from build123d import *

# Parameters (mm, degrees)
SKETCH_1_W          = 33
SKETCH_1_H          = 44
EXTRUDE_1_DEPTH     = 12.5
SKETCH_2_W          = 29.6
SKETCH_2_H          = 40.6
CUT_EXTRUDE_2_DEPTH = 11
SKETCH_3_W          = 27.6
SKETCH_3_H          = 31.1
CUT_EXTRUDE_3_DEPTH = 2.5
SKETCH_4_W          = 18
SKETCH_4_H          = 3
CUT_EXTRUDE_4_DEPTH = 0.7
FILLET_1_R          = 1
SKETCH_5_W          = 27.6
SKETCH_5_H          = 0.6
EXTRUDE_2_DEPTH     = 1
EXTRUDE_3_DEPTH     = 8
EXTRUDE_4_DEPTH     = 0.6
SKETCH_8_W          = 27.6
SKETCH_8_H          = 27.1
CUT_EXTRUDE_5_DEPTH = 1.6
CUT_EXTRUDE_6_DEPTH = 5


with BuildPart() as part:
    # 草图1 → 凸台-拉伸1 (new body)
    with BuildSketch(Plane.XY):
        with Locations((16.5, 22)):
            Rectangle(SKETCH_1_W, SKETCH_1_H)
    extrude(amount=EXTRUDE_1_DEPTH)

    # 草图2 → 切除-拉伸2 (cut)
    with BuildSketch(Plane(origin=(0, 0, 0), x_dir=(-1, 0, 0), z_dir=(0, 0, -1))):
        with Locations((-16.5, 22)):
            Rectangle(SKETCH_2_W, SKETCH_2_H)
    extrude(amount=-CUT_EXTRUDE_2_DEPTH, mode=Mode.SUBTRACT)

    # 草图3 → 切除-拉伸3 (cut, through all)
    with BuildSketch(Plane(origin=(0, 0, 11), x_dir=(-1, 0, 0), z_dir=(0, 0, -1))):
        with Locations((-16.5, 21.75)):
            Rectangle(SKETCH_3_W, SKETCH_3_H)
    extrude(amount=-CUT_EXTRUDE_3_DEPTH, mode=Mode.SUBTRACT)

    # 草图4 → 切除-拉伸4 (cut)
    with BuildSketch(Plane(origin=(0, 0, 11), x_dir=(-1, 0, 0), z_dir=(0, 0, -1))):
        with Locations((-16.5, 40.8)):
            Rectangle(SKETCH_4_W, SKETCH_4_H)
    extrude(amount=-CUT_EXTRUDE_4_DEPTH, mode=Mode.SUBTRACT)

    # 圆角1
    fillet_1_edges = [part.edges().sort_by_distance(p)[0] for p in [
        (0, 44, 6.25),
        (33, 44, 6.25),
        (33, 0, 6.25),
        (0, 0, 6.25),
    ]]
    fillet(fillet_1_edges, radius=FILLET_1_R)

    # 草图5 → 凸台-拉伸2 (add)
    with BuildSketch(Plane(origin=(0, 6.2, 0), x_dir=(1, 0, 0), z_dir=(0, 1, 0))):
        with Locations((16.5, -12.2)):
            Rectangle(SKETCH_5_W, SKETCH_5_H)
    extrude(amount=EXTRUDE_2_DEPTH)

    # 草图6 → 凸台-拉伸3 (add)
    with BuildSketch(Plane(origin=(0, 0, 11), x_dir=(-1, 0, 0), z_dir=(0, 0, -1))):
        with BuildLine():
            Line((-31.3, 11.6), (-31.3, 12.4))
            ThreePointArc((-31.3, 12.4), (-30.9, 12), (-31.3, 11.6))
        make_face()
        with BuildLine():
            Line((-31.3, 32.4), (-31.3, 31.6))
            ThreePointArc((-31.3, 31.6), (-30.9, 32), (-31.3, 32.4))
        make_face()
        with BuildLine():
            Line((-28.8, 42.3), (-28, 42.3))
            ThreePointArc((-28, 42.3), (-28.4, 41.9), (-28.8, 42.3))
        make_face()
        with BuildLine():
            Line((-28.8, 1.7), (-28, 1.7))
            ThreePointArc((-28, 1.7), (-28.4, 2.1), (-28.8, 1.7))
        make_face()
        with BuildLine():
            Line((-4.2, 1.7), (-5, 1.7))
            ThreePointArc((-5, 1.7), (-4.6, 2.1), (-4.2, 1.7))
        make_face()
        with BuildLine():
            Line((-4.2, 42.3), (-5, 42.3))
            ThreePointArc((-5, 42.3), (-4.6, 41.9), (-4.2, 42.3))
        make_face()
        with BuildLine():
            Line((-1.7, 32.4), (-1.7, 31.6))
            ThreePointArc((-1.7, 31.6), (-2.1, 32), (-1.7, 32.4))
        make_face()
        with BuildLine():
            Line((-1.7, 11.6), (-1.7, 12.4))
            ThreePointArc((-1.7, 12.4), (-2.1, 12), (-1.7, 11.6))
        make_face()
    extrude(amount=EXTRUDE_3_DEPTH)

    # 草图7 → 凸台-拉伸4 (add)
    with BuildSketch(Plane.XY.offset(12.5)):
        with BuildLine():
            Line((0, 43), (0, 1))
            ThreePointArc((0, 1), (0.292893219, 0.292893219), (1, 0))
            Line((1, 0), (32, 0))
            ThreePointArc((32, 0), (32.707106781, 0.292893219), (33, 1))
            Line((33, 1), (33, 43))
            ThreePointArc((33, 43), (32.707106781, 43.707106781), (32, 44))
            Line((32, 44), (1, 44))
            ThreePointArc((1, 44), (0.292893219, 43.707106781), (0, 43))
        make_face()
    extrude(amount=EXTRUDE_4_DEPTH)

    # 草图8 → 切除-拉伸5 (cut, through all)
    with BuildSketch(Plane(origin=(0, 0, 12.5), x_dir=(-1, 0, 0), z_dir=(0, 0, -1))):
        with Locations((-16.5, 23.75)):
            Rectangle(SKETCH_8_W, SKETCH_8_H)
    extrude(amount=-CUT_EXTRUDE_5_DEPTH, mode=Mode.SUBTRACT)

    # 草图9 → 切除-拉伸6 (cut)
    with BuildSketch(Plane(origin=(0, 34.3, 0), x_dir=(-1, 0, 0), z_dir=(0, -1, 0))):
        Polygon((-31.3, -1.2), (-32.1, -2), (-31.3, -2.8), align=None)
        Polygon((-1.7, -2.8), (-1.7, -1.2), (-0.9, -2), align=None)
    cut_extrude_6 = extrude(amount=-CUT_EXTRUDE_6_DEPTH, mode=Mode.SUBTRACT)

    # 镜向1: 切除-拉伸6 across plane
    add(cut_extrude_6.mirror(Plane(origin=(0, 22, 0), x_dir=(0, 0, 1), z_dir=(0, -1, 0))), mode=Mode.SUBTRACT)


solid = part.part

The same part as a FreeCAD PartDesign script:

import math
import FreeCAD as App
import Part
import Sketcher

V = App.Vector


def edges_at(feature, points):
    """Names of the edges that pass closest to the given points."""
    edges = feature.Shape.Edges
    near = lambda p: min(range(len(edges)), key=lambda i: edges[i].distToShape(Part.Vertex(*p))[0])
    return sorted({f"Edge{near(p) + 1}" for p in points})


def add_polygon(sketch, points):
    """Adds a closed chain of lines whose ends are joined by coincident constraints."""
    first, n = sketch.GeometryCount, len(points)
    for a, b in zip(points, points[1:] + points[:1]):
        sketch.addGeometry(Part.LineSegment(App.Vector(*a, 0), App.Vector(*b, 0)), False)
    for i in range(n):
        sketch.addConstraint(Sketcher.Constraint("Coincident", first + i, 2, first + (i + 1) % n, 1))

doc = App.newDocument("Part")
body = doc.addObject("PartDesign::Body", "Body")

# Sketch on XY plane
sketch1 = doc.addObject("Sketcher::SketchObject", "Sketch")
body.addObject(sketch1)
sketch1.AttachmentSupport = (doc.XY_Plane, [""])
sketch1.MapMode = "FlatFace"
add_polygon(sketch1, [(0, 44), (0, 0), (33, 0), (33, 44)])  # lines 0-3
sketch1.addConstraint([
    Sketcher.Constraint("Vertical", 0),
    Sketcher.Constraint("Horizontal", 1),
    Sketcher.Constraint("Vertical", 2),
    Sketcher.Constraint("Horizontal", 3),
    Sketcher.Constraint("Coincident", 0, 2, -1, 1),
    Sketcher.Constraint("DistanceX", 1, 1, 1, 2, 33.0),
    Sketcher.Constraint("DistanceY", 0, 2, 0, 1, 44.0),
])
pad1 = doc.addObject("PartDesign::Pad", "Pad")
body.addObject(pad1)
pad1.Profile = sketch1
pad1.Length = 12.5

# Sketch on XY plane
sketch2 = doc.addObject("Sketcher::SketchObject", "Sketch001")
body.addObject(sketch2)
sketch2.AttachmentSupport = (doc.XY_Plane, [""])
sketch2.MapMode = "FlatFace"
add_polygon(sketch2, [(31.3, 42.3), (31.3, 1.7), (1.7, 1.7), (1.7, 42.3)])  # lines 0-3
sketch2.addConstraint([
    Sketcher.Constraint("Vertical", 0),
    Sketcher.Constraint("Horizontal", 1),
    Sketcher.Constraint("Vertical", 2),
    Sketcher.Constraint("Horizontal", 3),
    Sketcher.Constraint("DistanceX", 1, 2, 1, 1, 29.6),
    Sketcher.Constraint("DistanceY", 0, 2, 0, 1, 40.6),
    Sketcher.Constraint("DistanceX", -1, 1, 0, 2, 31.3),
    Sketcher.Constraint("DistanceY", -1, 1, 0, 2, 1.7),
])
pocket1 = doc.addObject("PartDesign::Pocket", "Pocket")
body.addObject(pocket1)
pocket1.Profile = sketch2
pocket1.Length = 11
pocket1.Reversed = True

# Sketch on XY plane
sketch3 = doc.addObject("Sketcher::SketchObject", "Sketch002")
body.addObject(sketch3)
sketch3.AttachmentSupport = (doc.XY_Plane, [""])
sketch3.MapMode = "FlatFace"
sketch3.AttachmentOffset = App.Placement(V(0, 0, 11), App.Rotation())
add_polygon(sketch3, [(30.3, 37.3), (30.3, 6.2), (2.7, 6.2), (2.7, 37.3)])  # lines 0-3
sketch3.addConstraint([
    Sketcher.Constraint("Vertical", 0),
    Sketcher.Constraint("Horizontal", 1),
    Sketcher.Constraint("Vertical", 2),
    Sketcher.Constraint("Horizontal", 3),
    Sketcher.Constraint("DistanceX", 1, 2, 1, 1, 27.6),
    Sketcher.Constraint("DistanceY", 0, 2, 0, 1, 31.1),
    Sketcher.Constraint("DistanceX", -1, 1, 0, 2, 30.3),
    Sketcher.Constraint("DistanceY", -1, 1, 0, 2, 6.2),
])
pocket2 = doc.addObject("PartDesign::Pocket", "Pocket001")
body.addObject(pocket2)
pocket2.Profile = sketch3
pocket2.Type = "ThroughAll"
pocket2.Reversed = True

# Sketch on XY plane
sketch4 = doc.addObject("Sketcher::SketchObject", "Sketch003")
body.addObject(sketch4)
sketch4.AttachmentSupport = (doc.XY_Plane, [""])
sketch4.MapMode = "FlatFace"
sketch4.AttachmentOffset = App.Placement(V(0, 0, 11), App.Rotation())
add_polygon(sketch4, [(25.5, 42.3), (25.5, 39.3), (7.5, 39.3), (7.5, 42.3)])  # lines 0-3
sketch4.addConstraint([
    Sketcher.Constraint("Vertical", 0),
    Sketcher.Constraint("Horizontal", 1),
    Sketcher.Constraint("Vertical", 2),
    Sketcher.Constraint("Horizontal", 3),
    Sketcher.Constraint("DistanceX", 1, 2, 1, 1, 18.0),
    Sketcher.Constraint("DistanceY", 0, 2, 0, 1, 3.0),
    Sketcher.Constraint("DistanceX", -1, 1, 0, 2, 25.5),
    Sketcher.Constraint("DistanceY", -1, 1, 0, 2, 39.3),
])
pocket3 = doc.addObject("PartDesign::Pocket", "Pocket002")
body.addObject(pocket3)
pocket3.Profile = sketch4
pocket3.Length = 0.7
pocket3.Reversed = True
doc.recompute()

fillet = doc.addObject("PartDesign::Fillet", "Fillet")
body.addObject(fillet)
fillet.Base = (pocket3, edges_at(pocket3, [
    (0, 44, 6.25),
    (33, 44, 6.25),
    (33, 0, 6.25),
    (0, 0, 6.25),
]))
fillet.Radius = 1

# Sketch on XZ plane
sketch5 = doc.addObject("Sketcher::SketchObject", "Sketch004")
body.addObject(sketch5)
sketch5.AttachmentSupport = (doc.XZ_Plane, [""])
sketch5.MapMode = "FlatFace"
sketch5.AttachmentOffset = App.Placement(V(0, 0, -6.2), App.Rotation())
add_polygon(sketch5, [(2.7, 11.9), (2.7, 12.5), (30.3, 12.5), (30.3, 11.9)])  # lines 0-3
sketch5.addConstraint([
    Sketcher.Constraint("Vertical", 0),
    Sketcher.Constraint("Horizontal", 1),
    Sketcher.Constraint("Vertical", 2),
    Sketcher.Constraint("Horizontal", 3),
    Sketcher.Constraint("DistanceX", 1, 1, 1, 2, 27.6),
    Sketcher.Constraint("DistanceY", 0, 1, 0, 2, 0.6),
    Sketcher.Constraint("DistanceX", -1, 1, 0, 2, 2.7),
    Sketcher.Constraint("DistanceY", -1, 1, 0, 2, 12.5),
])
pad2 = doc.addObject("PartDesign::Pad", "Pad001")
body.addObject(pad2)
pad2.Profile = sketch5
pad2.Length = 1
pad2.Reversed = True

# Sketch on XY plane
sketch6 = doc.addObject("Sketcher::SketchObject", "Sketch005")
body.addObject(sketch6)
sketch6.AttachmentSupport = (doc.XY_Plane, [""])
sketch6.MapMode = "FlatFace"
sketch6.AttachmentOffset = App.Placement(V(0, 0, 11), App.Rotation())
sketch6.addGeometry([
    Part.LineSegment(V(31.3, 12.4, 0), V(31.3, 11.6, 0)),  # 0
    Part.ArcOfCircle(Part.Circle(V(31.3, 12, 0), V(0, 0, 1), 0.4), math.radians(90), math.radians(270)),  # 1
    Part.LineSegment(V(31.3, 32.4, 0), V(31.3, 31.6, 0)),  # 2
    Part.ArcOfCircle(Part.Circle(V(31.3, 32, 0), V(0, 0, 1), 0.4), math.radians(90), math.radians(270)),  # 3
    Part.LineSegment(V(28, 42.3, 0), V(28.8, 42.3, 0)),  # 4
    Part.ArcOfCircle(Part.Circle(V(28.4, 42.3, 0), V(0, 0, 1), 0.4), math.radians(180), math.radians(360)),  # 5
    Part.LineSegment(V(28.8, 1.7, 0), V(28, 1.7, 0)),  # 6
    Part.ArcOfCircle(Part.Circle(V(28.4, 1.7, 0), V(0, 0, 1), 0.4), math.radians(0), math.radians(180)),  # 7
    Part.LineSegment(V(5, 1.7, 0), V(4.2, 1.7, 0)),  # 8
    Part.ArcOfCircle(Part.Circle(V(4.6, 1.7, 0), V(0, 0, 1), 0.4), math.radians(0), math.radians(180)),  # 9
    Part.LineSegment(V(4.2, 42.3, 0), V(5, 42.3, 0)),  # 10
    Part.ArcOfCircle(Part.Circle(V(4.6, 42.3, 0), V(0, 0, 1), 0.4), math.radians(180), math.radians(360)),  # 11
    Part.LineSegment(V(1.7, 31.6, 0), V(1.7, 32.4, 0)),  # 12
    Part.ArcOfCircle(Part.Circle(V(1.7, 32, 0), V(0, 0, 1), 0.4), math.radians(-90), math.radians(90)),  # 13
    Part.LineSegment(V(1.7, 11.6, 0), V(1.7, 12.4, 0)),  # 14
    Part.ArcOfCircle(Part.Circle(V(1.7, 12, 0), V(0, 0, 1), 0.4), math.radians(-90), math.radians(90)),  # 15
], False)
sketch6.addConstraint([
    Sketcher.Constraint("Coincident", 0, 1, 1, 1),
    Sketcher.Constraint("Coincident", 1, 2, 0, 2),
    Sketcher.Constraint("Coincident", 2, 1, 3, 1),
    Sketcher.Constraint("Coincident", 3, 2, 2, 2),
    Sketcher.Constraint("Coincident", 4, 1, 5, 1),
    Sketcher.Constraint("Coincident", 5, 2, 4, 2),
    Sketcher.Constraint("Coincident", 6, 1, 7, 1),
    Sketcher.Constraint("Coincident", 7, 2, 6, 2),
    Sketcher.Constraint("Coincident", 8, 1, 9, 1),
    Sketcher.Constraint("Coincident", 9, 2, 8, 2),
    Sketcher.Constraint("Coincident", 10, 1, 11, 1),
    Sketcher.Constraint("Coincident", 11, 2, 10, 2),
    Sketcher.Constraint("Coincident", 12, 1, 13, 1),
    Sketcher.Constraint("Coincident", 13, 2, 12, 2),
    Sketcher.Constraint("Coincident", 14, 1, 15, 1),
    Sketcher.Constraint("Coincident", 15, 2, 14, 2),
    Sketcher.Constraint("Vertical", 0),
    Sketcher.Constraint("Vertical", 2),
    Sketcher.Constraint("Horizontal", 4),
    Sketcher.Constraint("Horizontal", 6),
    Sketcher.Constraint("Horizontal", 8),
    Sketcher.Constraint("Horizontal", 10),
    Sketcher.Constraint("Vertical", 12),
    Sketcher.Constraint("Vertical", 14),
    Sketcher.Constraint("Equal", 1, 3),
    Sketcher.Constraint("Equal", 3, 5),
    Sketcher.Constraint("Equal", 5, 7),
    Sketcher.Constraint("Equal", 7, 9),
    Sketcher.Constraint("Equal", 9, 11),
    Sketcher.Constraint("Equal", 11, 13),
    Sketcher.Constraint("Equal", 13, 15),
    Sketcher.Constraint("Horizontal", 7, 3, 9, 3),
    Sketcher.Constraint("Horizontal", 5, 3, 11, 3),
    Sketcher.Constraint("Horizontal", 3, 3, 13, 3),
    Sketcher.Constraint("Horizontal", 1, 3, 15, 3),
    Sketcher.Constraint("Horizontal", 11, 3, 4, 1),
    Sketcher.Constraint("Horizontal", 9, 3, 6, 1),
    Sketcher.Constraint("Horizontal", 7, 2, 8, 1),
    Sketcher.Constraint("Horizontal", 5, 2, 10, 1),
    Sketcher.Constraint("Vertical", 1, 3, 3, 3),
    Sketcher.Constraint("Vertical", 5, 3, 7, 3),
    Sketcher.Constraint("Vertical", 9, 3, 11, 3),
    Sketcher.Constraint("Vertical", 13, 3, 15, 3),
    Sketcher.Constraint("Vertical", 3, 3, 0, 1),
    Sketcher.Constraint("Vertical", 1, 2, 2, 1),
    Sketcher.Constraint("Vertical", 15, 3, 12, 1),
    Sketcher.Constraint("Vertical", 13, 2, 14, 1),
    Sketcher.Constraint("Radius", 1, 0.4),
    Sketcher.Constraint("DistanceY", -1, 1, 1, 3, 12.0),
    Sketcher.Constraint("DistanceY", -1, 1, 3, 3, 32.0),
    Sketcher.Constraint("DistanceX", -1, 1, 4, 1, 28.0),
    Sketcher.Constraint("DistanceX", -1, 1, 8, 1, 5.0),
    Sketcher.Constraint("DistanceX", -1, 1, 1, 3, 31.3),
    Sketcher.Constraint("DistanceY", -1, 1, 5, 3, 42.3),
    Sketcher.Constraint("DistanceY", -1, 1, 7, 3, 1.7),
    Sketcher.Constraint("DistanceX", -1, 1, 13, 3, 1.7),
])
pad3 = doc.addObject("PartDesign::Pad", "Pad002")
body.addObject(pad3)
pad3.Profile = sketch6
pad3.Length = 8
pad3.Reversed = True

# Sketch on XY plane
sketch7 = doc.addObject("Sketcher::SketchObject", "Sketch006")
body.addObject(sketch7)
sketch7.AttachmentSupport = (doc.XY_Plane, [""])
sketch7.MapMode = "FlatFace"
sketch7.AttachmentOffset = App.Placement(V(0, 0, 12.5), App.Rotation())
sketch7.addGeometry([
    Part.LineSegment(V(0, 43, 0), V(0, 1, 0)),  # 0
    Part.ArcOfCircle(Part.Circle(V(1, 1, 0), V(0, 0, 1), 1), math.radians(-180), math.radians(-90)),  # 1
    Part.LineSegment(V(1, 0, 0), V(32, 0, 0)),  # 2
    Part.ArcOfCircle(Part.Circle(V(32, 1, 0), V(0, 0, 1), 1), math.radians(-90), math.radians(0)),  # 3
    Part.LineSegment(V(33, 1, 0), V(33, 43, 0)),  # 4
    Part.ArcOfCircle(Part.Circle(V(32, 43, 0), V(0, 0, 1), 1), math.radians(0), math.radians(90)),  # 5
    Part.LineSegment(V(32, 44, 0), V(1, 44, 0)),  # 6
    Part.ArcOfCircle(Part.Circle(V(1, 43, 0), V(0, 0, 1), 1), math.radians(90), math.radians(180)),  # 7
], False)
sketch7.addConstraint([
    Sketcher.Constraint("Tangent", 0, 2, 1, 1),
    Sketcher.Constraint("Tangent", 1, 2, 2, 1),
    Sketcher.Constraint("Tangent", 2, 2, 3, 1),
    Sketcher.Constraint("Tangent", 3, 2, 4, 1),
    Sketcher.Constraint("Tangent", 4, 2, 5, 1),
    Sketcher.Constraint("Tangent", 5, 2, 6, 1),
    Sketcher.Constraint("Tangent", 6, 2, 7, 1),
    Sketcher.Constraint("Tangent", 7, 2, 0, 1),
    Sketcher.Constraint("Vertical", 0),
    Sketcher.Constraint("Horizontal", 2),
    Sketcher.Constraint("Vertical", 4),
    Sketcher.Constraint("Horizontal", 6),
    Sketcher.Constraint("Equal", 1, 3),
    Sketcher.Constraint("Equal", 3, 5),
    Sketcher.Constraint("Equal", 5, 7),
    Sketcher.Constraint("PointOnObject", 0, 2, -2),
    Sketcher.Constraint("PointOnObject", 1, 2, -1),
    Sketcher.Constraint("Radius", 1, 1.0),
    Sketcher.Constraint("DistanceX", 2, 1, 2, 2, 31.0),
    Sketcher.Constraint("DistanceY", 0, 2, 0, 1, 42.0),
])
pad4 = doc.addObject("PartDesign::Pad", "Pad003")
body.addObject(pad4)
pad4.Profile = sketch7
pad4.Length = 0.6

# Sketch on XY plane
sketch8 = doc.addObject("Sketcher::SketchObject", "Sketch007")
body.addObject(sketch8)
sketch8.AttachmentSupport = (doc.XY_Plane, [""])
sketch8.MapMode = "FlatFace"
sketch8.AttachmentOffset = App.Placement(V(0, 0, 12.5), App.Rotation())
add_polygon(sketch8, [(30.3, 37.3), (30.3, 10.2), (2.7, 10.2), (2.7, 37.3)])  # lines 0-3
sketch8.addConstraint([
    Sketcher.Constraint("Vertical", 0),
    Sketcher.Constraint("Horizontal", 1),
    Sketcher.Constraint("Vertical", 2),
    Sketcher.Constraint("Horizontal", 3),
    Sketcher.Constraint("DistanceX", 1, 2, 1, 1, 27.6),
    Sketcher.Constraint("DistanceY", 0, 2, 0, 1, 27.1),
    Sketcher.Constraint("DistanceX", -1, 1, 0, 2, 30.3),
    Sketcher.Constraint("DistanceY", -1, 1, 0, 2, 10.2),
])
pocket4 = doc.addObject("PartDesign::Pocket", "Pocket003")
body.addObject(pocket4)
pocket4.Profile = sketch8
pocket4.Type = "ThroughAll"
pocket4.Reversed = True

# Sketch on XZ plane
sketch9 = doc.addObject("Sketcher::SketchObject", "Sketch008")
body.addObject(sketch9)
sketch9.AttachmentSupport = (doc.XZ_Plane, [""])
sketch9.MapMode = "FlatFace"
sketch9.AttachmentOffset = App.Placement(V(0, 0, -34.3), App.Rotation())
add_polygon(sketch9, [(31.3, 1.2), (32.1, 2), (31.3, 2.8)])  # lines 0-2
add_polygon(sketch9, [(1.7, 1.2), (1.7, 2.8), (0.9, 2)])  # lines 3-5
sketch9.addConstraint([
    Sketcher.Constraint("Vertical", 2),
    Sketcher.Constraint("Vertical", 3),
    Sketcher.Constraint("Perpendicular", 0, 1),
    Sketcher.Constraint("Perpendicular", 1, 4),
    Sketcher.Constraint("Perpendicular", 4, 5),
    Sketcher.Constraint("Horizontal", 1, 2, 3, 2),
    Sketcher.Constraint("Horizontal", 0, 2, 4, 2),
    Sketcher.Constraint("Horizontal", 2, 2, 5, 2),
    Sketcher.Constraint("DistanceY", 2, 2, 2, 1, 1.6),
    Sketcher.Constraint("DistanceY", -1, 1, 0, 2, 2.0),
    Sketcher.Constraint("DistanceX", -1, 1, 0, 2, 32.1),
    Sketcher.Constraint("DistanceX", -1, 1, 3, 2, 1.7),
])
pocket5 = doc.addObject("PartDesign::Pocket", "Pocket004")
body.addObject(pocket5)
pocket5.Profile = sketch9
pocket5.Length = 5
doc.recompute()

datumplane = doc.addObject("PartDesign::Plane", "DatumPlane")
body.addObject(datumplane)
datumplane.AttachmentSupport = (doc.XZ_Plane, [""])
datumplane.MapMode = "FlatFace"
datumplane.AttachmentOffset = App.Placement(V(0, 0, -22), App.Rotation())
mirrored = doc.addObject("PartDesign::Mirrored", "Mirrored")
body.addObject(mirrored)
mirrored.Originals = [pocket5]
mirrored.MirrorPlane = (datumplane, [""])
body.Tip = mirrored

doc.recompute()
